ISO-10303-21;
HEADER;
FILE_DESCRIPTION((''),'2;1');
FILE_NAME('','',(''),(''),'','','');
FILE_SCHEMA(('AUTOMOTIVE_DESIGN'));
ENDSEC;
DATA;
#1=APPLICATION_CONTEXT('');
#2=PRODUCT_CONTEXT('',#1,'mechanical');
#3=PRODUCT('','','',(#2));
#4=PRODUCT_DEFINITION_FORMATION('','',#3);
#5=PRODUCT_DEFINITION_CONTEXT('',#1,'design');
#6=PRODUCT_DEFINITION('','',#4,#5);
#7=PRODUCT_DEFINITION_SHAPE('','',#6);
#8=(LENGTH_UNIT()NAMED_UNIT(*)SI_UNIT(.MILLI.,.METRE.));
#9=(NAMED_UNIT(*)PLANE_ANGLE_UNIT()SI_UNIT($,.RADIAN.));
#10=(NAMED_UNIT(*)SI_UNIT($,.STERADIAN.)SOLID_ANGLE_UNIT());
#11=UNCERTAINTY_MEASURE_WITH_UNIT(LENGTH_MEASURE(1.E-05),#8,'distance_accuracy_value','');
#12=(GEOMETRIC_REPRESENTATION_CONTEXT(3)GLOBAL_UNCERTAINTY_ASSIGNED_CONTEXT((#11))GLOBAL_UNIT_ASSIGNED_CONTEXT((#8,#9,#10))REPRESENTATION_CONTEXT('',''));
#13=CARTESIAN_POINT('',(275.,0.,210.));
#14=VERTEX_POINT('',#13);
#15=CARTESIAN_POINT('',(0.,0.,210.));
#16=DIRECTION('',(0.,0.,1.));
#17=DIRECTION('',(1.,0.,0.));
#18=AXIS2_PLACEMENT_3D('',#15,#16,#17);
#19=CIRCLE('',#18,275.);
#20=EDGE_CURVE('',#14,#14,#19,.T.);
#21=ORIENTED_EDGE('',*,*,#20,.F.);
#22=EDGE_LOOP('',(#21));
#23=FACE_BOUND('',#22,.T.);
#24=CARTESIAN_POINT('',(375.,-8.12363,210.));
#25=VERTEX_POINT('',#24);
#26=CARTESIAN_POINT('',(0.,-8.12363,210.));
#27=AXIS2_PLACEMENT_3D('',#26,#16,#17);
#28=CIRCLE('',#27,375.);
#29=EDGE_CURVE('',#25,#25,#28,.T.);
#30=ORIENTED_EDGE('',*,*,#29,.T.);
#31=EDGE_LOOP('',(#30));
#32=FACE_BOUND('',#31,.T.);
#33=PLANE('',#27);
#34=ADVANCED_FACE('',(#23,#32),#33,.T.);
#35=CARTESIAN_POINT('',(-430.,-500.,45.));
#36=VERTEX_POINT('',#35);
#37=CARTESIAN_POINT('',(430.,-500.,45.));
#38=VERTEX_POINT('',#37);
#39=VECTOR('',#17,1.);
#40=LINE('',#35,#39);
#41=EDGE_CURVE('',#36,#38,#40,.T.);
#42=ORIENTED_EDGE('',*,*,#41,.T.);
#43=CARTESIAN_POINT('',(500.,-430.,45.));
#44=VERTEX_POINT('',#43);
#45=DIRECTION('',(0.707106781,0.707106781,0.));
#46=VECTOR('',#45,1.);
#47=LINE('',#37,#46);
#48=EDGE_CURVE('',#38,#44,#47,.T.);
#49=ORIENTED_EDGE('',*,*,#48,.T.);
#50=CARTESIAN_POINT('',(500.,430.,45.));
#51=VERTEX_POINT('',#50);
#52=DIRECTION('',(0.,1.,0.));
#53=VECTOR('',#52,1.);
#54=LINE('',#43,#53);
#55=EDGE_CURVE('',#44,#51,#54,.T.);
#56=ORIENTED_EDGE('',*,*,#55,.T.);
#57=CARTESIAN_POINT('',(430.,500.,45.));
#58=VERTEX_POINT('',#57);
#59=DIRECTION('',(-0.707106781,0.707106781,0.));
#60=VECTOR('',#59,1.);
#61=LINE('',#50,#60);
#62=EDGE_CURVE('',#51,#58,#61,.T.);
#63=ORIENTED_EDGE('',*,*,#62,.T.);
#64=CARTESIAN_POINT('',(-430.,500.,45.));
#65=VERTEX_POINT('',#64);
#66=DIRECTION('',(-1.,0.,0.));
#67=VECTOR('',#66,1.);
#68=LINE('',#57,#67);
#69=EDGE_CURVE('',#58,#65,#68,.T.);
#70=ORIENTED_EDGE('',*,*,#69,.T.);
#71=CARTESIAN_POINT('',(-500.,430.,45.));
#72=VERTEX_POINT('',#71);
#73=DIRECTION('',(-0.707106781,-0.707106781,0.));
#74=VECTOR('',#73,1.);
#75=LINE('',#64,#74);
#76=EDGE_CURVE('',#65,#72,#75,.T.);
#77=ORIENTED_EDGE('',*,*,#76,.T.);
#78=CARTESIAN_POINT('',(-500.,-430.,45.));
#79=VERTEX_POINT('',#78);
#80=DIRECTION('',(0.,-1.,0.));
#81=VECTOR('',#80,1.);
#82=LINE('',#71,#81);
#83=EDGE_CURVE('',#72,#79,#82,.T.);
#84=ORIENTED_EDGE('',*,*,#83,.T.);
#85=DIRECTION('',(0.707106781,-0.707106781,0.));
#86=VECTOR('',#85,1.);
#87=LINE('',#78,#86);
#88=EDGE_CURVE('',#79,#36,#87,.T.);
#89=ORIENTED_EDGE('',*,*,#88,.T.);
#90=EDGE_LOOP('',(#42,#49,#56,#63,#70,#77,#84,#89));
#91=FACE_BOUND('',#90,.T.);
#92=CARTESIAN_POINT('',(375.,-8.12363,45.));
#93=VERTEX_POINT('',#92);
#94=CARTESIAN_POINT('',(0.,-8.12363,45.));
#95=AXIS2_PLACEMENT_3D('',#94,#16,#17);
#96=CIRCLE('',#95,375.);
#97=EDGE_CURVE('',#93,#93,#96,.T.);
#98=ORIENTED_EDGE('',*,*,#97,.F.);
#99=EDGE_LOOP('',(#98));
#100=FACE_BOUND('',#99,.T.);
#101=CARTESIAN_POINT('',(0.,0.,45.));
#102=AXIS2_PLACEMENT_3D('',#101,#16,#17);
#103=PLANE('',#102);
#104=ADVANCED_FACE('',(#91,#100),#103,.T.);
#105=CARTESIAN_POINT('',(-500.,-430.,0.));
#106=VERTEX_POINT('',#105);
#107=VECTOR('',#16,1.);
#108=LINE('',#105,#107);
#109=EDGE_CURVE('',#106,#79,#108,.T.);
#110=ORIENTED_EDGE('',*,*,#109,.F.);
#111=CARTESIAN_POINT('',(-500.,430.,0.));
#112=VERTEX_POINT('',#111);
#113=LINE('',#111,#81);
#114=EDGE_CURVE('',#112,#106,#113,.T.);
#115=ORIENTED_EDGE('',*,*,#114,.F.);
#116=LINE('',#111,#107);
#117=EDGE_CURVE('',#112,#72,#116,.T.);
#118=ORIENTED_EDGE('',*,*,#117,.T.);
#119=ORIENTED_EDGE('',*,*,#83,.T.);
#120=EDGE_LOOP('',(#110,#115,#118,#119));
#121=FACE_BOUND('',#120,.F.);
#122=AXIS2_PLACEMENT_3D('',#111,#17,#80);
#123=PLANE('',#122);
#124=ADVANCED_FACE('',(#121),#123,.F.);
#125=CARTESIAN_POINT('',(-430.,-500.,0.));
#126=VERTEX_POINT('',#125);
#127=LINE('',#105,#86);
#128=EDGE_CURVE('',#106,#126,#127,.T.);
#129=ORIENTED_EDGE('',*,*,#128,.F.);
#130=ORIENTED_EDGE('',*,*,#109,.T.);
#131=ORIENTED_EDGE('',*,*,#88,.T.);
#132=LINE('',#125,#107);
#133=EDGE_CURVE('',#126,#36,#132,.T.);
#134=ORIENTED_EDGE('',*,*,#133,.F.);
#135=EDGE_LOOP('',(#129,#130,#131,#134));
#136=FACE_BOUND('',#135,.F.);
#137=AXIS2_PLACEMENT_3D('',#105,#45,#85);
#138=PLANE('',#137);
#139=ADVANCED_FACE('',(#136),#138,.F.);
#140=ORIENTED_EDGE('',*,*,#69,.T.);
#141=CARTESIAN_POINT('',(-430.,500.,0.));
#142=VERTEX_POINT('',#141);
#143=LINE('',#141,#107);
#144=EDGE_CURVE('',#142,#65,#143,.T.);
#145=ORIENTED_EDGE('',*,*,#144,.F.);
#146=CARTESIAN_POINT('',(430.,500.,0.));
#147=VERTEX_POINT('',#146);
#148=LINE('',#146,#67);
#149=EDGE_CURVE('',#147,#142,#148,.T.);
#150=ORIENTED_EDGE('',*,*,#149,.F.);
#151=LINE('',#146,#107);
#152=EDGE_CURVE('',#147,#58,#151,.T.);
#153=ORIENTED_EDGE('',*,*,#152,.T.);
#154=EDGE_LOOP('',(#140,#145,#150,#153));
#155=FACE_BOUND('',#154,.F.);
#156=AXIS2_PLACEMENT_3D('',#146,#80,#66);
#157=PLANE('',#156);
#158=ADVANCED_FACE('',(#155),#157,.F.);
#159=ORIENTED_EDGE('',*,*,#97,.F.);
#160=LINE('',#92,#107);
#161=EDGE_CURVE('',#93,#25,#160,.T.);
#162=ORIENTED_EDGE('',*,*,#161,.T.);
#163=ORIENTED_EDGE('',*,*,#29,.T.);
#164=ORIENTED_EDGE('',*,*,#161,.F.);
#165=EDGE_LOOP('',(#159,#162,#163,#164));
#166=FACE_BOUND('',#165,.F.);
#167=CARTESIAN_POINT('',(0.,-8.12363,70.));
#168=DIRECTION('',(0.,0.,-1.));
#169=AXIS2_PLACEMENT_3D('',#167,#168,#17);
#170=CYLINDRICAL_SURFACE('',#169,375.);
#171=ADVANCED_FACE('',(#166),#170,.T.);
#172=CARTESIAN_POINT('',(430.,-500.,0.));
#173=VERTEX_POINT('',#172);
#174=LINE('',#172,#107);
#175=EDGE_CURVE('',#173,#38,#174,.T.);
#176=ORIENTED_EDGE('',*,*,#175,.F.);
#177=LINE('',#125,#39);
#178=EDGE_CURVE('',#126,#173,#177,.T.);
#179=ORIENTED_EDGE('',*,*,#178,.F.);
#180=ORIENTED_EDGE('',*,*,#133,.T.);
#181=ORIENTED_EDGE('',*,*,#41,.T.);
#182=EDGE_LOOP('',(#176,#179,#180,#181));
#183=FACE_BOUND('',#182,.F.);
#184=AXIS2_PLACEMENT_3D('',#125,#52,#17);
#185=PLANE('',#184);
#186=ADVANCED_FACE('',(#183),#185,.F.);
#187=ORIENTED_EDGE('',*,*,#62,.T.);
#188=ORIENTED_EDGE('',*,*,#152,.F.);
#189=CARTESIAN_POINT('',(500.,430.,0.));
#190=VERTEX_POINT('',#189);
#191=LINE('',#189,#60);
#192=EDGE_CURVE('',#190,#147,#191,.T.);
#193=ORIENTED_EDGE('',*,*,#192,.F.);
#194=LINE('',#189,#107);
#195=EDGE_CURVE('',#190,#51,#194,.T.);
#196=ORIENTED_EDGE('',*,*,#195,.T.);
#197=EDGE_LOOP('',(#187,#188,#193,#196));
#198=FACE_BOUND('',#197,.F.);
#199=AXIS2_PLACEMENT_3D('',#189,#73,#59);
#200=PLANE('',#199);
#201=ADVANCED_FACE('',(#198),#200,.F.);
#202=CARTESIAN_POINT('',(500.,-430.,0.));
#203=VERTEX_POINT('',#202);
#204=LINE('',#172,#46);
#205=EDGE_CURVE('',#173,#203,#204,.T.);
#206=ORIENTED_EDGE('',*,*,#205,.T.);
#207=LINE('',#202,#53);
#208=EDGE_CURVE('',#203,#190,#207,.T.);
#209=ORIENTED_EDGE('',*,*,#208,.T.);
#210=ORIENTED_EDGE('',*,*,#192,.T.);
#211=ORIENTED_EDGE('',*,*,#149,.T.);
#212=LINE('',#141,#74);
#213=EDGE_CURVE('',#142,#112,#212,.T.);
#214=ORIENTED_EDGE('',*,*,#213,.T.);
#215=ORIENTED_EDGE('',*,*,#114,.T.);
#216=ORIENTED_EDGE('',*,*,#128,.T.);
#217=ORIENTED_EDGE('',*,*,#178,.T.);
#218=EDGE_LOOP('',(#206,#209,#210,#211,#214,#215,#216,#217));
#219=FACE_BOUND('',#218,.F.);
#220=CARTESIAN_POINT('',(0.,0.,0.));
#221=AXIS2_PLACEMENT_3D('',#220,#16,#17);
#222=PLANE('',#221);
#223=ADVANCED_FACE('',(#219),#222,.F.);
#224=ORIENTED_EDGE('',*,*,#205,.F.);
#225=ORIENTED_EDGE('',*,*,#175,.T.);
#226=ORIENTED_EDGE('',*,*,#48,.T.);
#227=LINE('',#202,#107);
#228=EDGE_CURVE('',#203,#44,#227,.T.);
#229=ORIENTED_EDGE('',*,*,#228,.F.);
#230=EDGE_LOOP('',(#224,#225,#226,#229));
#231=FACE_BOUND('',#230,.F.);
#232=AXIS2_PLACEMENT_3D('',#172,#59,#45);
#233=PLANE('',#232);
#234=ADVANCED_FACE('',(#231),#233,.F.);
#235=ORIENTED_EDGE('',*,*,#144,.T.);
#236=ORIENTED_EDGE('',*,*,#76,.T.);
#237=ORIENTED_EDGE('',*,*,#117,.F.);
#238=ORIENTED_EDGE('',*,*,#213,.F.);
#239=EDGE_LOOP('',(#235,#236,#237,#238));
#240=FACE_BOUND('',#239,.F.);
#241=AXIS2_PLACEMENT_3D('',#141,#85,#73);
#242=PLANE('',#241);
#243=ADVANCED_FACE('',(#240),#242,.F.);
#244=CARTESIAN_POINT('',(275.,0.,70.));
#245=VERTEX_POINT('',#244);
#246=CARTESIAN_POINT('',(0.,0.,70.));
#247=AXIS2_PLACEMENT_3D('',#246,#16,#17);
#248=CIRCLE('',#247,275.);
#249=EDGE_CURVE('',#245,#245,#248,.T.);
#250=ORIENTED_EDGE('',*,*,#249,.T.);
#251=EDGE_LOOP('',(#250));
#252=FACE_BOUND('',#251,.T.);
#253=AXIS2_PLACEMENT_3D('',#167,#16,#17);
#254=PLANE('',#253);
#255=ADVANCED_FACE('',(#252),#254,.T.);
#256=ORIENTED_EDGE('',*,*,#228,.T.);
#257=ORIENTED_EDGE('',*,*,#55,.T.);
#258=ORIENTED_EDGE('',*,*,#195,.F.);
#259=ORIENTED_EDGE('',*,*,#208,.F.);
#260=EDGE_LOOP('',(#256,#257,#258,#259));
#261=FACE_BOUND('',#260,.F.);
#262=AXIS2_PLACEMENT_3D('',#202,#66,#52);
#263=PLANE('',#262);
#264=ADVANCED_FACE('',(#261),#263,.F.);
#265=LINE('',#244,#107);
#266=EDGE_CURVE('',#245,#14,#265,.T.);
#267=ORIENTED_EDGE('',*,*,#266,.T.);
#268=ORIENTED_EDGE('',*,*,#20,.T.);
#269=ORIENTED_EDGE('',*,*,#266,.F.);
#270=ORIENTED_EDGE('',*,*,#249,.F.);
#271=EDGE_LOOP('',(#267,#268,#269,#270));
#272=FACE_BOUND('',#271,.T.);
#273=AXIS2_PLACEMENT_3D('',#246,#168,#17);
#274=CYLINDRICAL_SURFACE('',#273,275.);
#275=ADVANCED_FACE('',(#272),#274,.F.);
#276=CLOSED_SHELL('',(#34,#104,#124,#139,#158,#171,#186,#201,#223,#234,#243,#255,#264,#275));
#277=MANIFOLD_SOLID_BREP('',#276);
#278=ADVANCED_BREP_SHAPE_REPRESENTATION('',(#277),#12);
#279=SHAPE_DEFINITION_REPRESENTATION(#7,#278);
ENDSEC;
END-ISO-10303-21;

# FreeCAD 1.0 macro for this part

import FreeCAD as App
import Part
import Sketcher

doc = App.newDocument("Part")
params = doc.addObject("Spreadsheet::Sheet", "Params")
for row, (alias, value) in enumerate([
    ("sketch1_width", "860 mm"),
    ("pad1_length", "45 mm"),
    ("sketch2_diameter", "750 mm"),
    ("pad2_length", "25 mm"),
    ("sketch3_diameter", "750 mm"),
    ("sketch3_diameter2", "550 mm"),
    ("pad3_length", "140 mm"),
], start=1):
    params.set(f"A{row}", alias)
    params.set(f"B{row}", "=" + value)
    params.setAlias(f"B{row}", alias)

body = doc.addObject("PartDesign::Body", "Body")

# Sketch on XY plane
sketch1 = doc.addObject("Sketcher::SketchObject", "Sketch")
body.addObject(sketch1)
sketch1.AttachmentSupport = (doc.XY_Plane, [""])
sketch1.MapMode = "FlatFace"
sketch1.addGeometry([
    Part.LineSegment(App.Vector(500, 430, 0), App.Vector(430, 500, 0)),  # 0
    Part.LineSegment(App.Vector(430, 500, 0), App.Vector(-430, 500, 0)),  # 1
    Part.LineSegment(App.Vector(-430, 500, 0), App.Vector(-500, 430, 0)),  # 2
    Part.LineSegment(App.Vector(-500, 430, 0), App.Vector(-500, -430, 0)),  # 3
    Part.LineSegment(App.Vector(-500, -430, 0), App.Vector(-430, -500, 0)),  # 4
    Part.LineSegment(App.Vector(-430, -500, 0), App.Vector(430, -500, 0)),  # 5
    Part.LineSegment(App.Vector(430, -500, 0), App.Vector(500, -430, 0)),  # 6
    Part.LineSegment(App.Vector(500, -430, 0), App.Vector(500, 430, 0)),  # 7
], False)
sketch1.addConstraint([
    Sketcher.Constraint("Coincident", 0, 2, 1, 1),
    Sketcher.Constraint("Coincident", 1, 2, 2, 1),
    Sketcher.Constraint("Coincident", 2, 2, 3, 1),
    Sketcher.Constraint("Coincident", 3, 2, 4, 1),
    Sketcher.Constraint("Coincident", 4, 2, 5, 1),
    Sketcher.Constraint("Coincident", 5, 2, 6, 1),
    Sketcher.Constraint("Coincident", 6, 2, 7, 1),
    Sketcher.Constraint("Coincident", 7, 2, 0, 1),
    Sketcher.Constraint("Horizontal", 1),
    Sketcher.Constraint("Vertical", 3),
    Sketcher.Constraint("Horizontal", 5),
    Sketcher.Constraint("Vertical", 7),
    Sketcher.Constraint("Symmetric", 0, 2, 4, 2, -1, 1),
    Sketcher.Constraint("Symmetric", 2, 2, 6, 2, -1, 1),
    Sketcher.Constraint("Perpendicular", 0, 2),
    Sketcher.Constraint("Perpendicular", 2, 4),
    Sketcher.Constraint("Perpendicular", 4, 6),
    Sketcher.Constraint("Horizontal", 3, 2, 6, 2),
    Sketcher.Constraint("Vertical", 1, 2, 4, 2),
    Sketcher.Constraint("Equal", 5, 3),
    Sketcher.Constraint("DistanceX", 1, 2, 1, 1, 860.0),
    Sketcher.Constraint("DistanceY", -1, 1, 0, 2, 500.0),
])
sketch1.setExpression("Constraints[20]", "Params.sketch1_width")
pad1 = doc.addObject("PartDesign::Pad", "Pad")
body.addObject(pad1)
pad1.Profile = sketch1
pad1.setExpression("Length", "Params.pad1_length")

# Sketch on XY plane
sketch2 = doc.addObject("Sketcher::SketchObject", "Sketch001")
body.addObject(sketch2)
sketch2.AttachmentSupport = (doc.XY_Plane, [""])
sketch2.MapMode = "FlatFace"
sketch2.AttachmentOffset = App.Placement(App.Vector(0, 0, 45), App.Rotation())
sketch2.addGeometry(Part.Circle(App.Vector(0, -8.12363, 0), App.Vector(0, 0, 1), 375), False)
sketch2.addConstraint([
    Sketcher.Constraint("PointOnObject", 0, 3, -2),
    Sketcher.Constraint("Diameter", 0, 750.0),
    Sketcher.Constraint("DistanceY", 0, 3, -1, 1, 8.12363),
])
sketch2.setExpression("Constraints[1]", "Params.sketch2_diameter")
pad2 = doc.addObject("PartDesign::Pad", "Pad001")
body.addObject(pad2)
pad2.Profile = sketch2
pad2.setExpression("Length", "Params.pad2_length")

# Sketch on XY plane
sketch3 = doc.addObject("Sketcher::SketchObject", "Sketch002")
body.addObject(sketch3)
sketch3.AttachmentSupport = (doc.XY_Plane, [""])
sketch3.MapMode = "FlatFace"
sketch3.AttachmentOffset = App.Placement(App.Vector(0, 0, 70), App.Rotation())
sketch3.addGeometry([
    Part.Circle(App.Vector(0, -8.12363, 0), App.Vector(0, 0, 1), 375),
    Part.Circle(App.Vector(0, 0, 0), App.Vector(0, 0, 1), 275),
], False)
sketch3.addConstraint([
    Sketcher.Constraint("Coincident", 1, 3, -1, 1),
    Sketcher.Constraint("PointOnObject", 0, 3, -2),
    Sketcher.Constraint("Diameter", 0, 750.0),
    Sketcher.Constraint("Diameter", 1, 550.0),
    Sketcher.Constraint("DistanceY", 0, 3, -1, 1, 8.12363),
])
sketch3.setExpression("Constraints[2]", "Params.sketch3_diameter")
sketch3.setExpression("Constraints[3]", "Params.sketch3_diameter2")
pad3 = doc.addObject("PartDesign::Pad", "Pad002")
body.addObject(pad3)
pad3.Profile = sketch3
pad3.setExpression("Length", "Params.pad3_length")

doc.recompute()
